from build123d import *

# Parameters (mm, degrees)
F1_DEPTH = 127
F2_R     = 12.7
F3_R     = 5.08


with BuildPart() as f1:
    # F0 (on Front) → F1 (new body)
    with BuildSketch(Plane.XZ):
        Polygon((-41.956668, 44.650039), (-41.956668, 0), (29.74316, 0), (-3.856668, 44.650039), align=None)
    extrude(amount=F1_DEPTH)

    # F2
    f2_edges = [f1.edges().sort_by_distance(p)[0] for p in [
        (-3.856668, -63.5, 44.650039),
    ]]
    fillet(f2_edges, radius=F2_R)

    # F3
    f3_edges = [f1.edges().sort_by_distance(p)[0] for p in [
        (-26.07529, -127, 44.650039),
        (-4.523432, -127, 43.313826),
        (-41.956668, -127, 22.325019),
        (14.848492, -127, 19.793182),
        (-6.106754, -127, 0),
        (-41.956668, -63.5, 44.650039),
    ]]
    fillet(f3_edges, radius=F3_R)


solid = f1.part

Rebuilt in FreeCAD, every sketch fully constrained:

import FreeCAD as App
import Part
import Sketcher
from FreeCAD import Vector
Q = App.Units.Quantity


def edges_at(feature, points):
    """Names of the edges that pass closest to the given points."""
    edges = feature.Shape.Edges
    near = lambda p: min(range(len(edges)), key=lambda i: edges[i].distToShape(Part.Vertex(*p))[0])
    return sorted({f"Edge{near(p) + 1}" for p in points})


def add_polygon(sketch, points):
    """Adds a closed chain of lines whose ends are joined by coincident constraints."""
    first, n = sketch.GeometryCount, len(points)
    for a, b in zip(points, points[1:] + points[:1]):
        sketch.addGeometry(Part.LineSegment(App.Vector(*a, 0), App.Vector(*b, 0)), False)
    for i in range(n):
        sketch.addConstraint(Sketcher.Constraint("Coincident", first + i, 2, first + (i + 1) % n, 1))

doc = App.newDocument("Part")
body = doc.addObject("PartDesign::Body", "Body")

# Sketch on XZ plane
sketch1 = doc.addObject("Sketcher::SketchObject", "Sketch")
body.addObject(sketch1)
sketch1.AttachmentSupport = (doc.XZ_Plane, [""])
sketch1.MapMode = "FlatFace"
add_polygon(sketch1, [(-41.956668, 44.650039), (-41.956668, 0), (29.74316, 0), (-3.856668, 44.650039)])  # lines 0-3
sketch1.addConstraint(Sketcher.Constraint("Vertical", 0))
sketch1.addConstraint(Sketcher.Constraint("Horizontal", 1))
sketch1.addConstraint(Sketcher.Constraint("Horizontal", 3))
sketch1.addConstraint(Sketcher.Constraint("PointOnObject", 0, 2, -1))
sketch1.addConstraint(Sketcher.Constraint("DistanceX", 3, 2, 3, 1, Q("1.5 in")))
sketch1.addConstraint(Sketcher.Constraint("Distance", 2, Q("2.2 in")))
sketch1.addConstraint(Sketcher.Constraint("DistanceY", 0, 2, 0, 1, 44.650039))
sketch1.addConstraint(Sketcher.Constraint("DistanceX", -1, 1, 1, 2, 29.74316))
pad1 = doc.addObject("PartDesign::Pad", "Pad")
body.addObject(pad1)
pad1.Profile = sketch1
pad1.Length = Q("5 in")
doc.recompute()

fillet = doc.addObject("PartDesign::Fillet", "Fillet")
body.addObject(fillet)
fillet.Base = (pad1, edges_at(pad1, [(-3.857, -63.5, 44.65)]))
fillet.Radius = Q("0.5 in")
doc.recompute()

fillet2 = doc.addObject("PartDesign::Fillet", "Fillet001")
body.addObject(fillet2)
fillet2.Base = (fillet, edges_at(fillet, [
    (-26.075, -127, 44.65),
    (-4.523, -127, 43.314),
    (-41.957, -127, 22.325),
    (14.848, -127, 19.793),
    (-6.107, -127, 0),
    (-41.957, -63.5, 44.65),
]))
fillet2.Radius = Q("0.2 in")

doc.recompute()
